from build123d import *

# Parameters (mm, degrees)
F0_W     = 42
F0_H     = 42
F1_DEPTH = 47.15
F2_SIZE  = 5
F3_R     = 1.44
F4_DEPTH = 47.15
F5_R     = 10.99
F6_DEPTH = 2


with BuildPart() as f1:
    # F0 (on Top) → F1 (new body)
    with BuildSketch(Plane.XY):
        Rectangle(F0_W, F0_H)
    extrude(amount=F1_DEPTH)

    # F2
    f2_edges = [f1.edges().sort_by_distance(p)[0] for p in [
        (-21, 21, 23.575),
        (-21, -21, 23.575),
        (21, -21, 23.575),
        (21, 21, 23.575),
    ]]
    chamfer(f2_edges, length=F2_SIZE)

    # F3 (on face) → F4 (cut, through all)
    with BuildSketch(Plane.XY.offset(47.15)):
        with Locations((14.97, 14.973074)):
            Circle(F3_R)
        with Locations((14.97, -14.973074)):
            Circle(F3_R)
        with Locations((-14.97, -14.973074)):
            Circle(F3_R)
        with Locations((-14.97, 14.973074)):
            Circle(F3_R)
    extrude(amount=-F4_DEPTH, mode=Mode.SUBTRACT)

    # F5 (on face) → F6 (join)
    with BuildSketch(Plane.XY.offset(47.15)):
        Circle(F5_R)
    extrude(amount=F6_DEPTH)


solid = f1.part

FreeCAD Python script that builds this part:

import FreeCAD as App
import Part
import Sketcher
from FreeCAD import Vector
Q = App.Units.Quantity


def edges_at(feature, points):
    """Names of the edges that pass closest to the given points."""
    edges = feature.Shape.Edges
    near = lambda p: min(range(len(edges)), key=lambda i: edges[i].distToShape(Part.Vertex(*p))[0])
    return sorted({f"Edge{near(p) + 1}" for p in points})


def add_polygon(sketch, points):
    """Adds a closed chain of lines whose ends are joined by coincident constraints."""
    first, n = sketch.GeometryCount, len(points)
    for a, b in zip(points, points[1:] + points[:1]):
        sketch.addGeometry(Part.LineSegment(App.Vector(*a, 0), App.Vector(*b, 0)), False)
    for i in range(n):
        sketch.addConstraint(Sketcher.Constraint("Coincident", first + i, 2, first + (i + 1) % n, 1))

doc = App.newDocument("Part")
body = doc.addObject("PartDesign::Body", "Body")

sketch1 = body.newObject("Sketcher::SketchObject", "Sketch")
sketch1.AttachmentSupport = (doc.getObject("XY_Plane"), [""])
sketch1.MapMode = "FlatFace"
add_polygon(sketch1, [(-21, 21), (-21, -21), (21, -21), (21, 21)])
sketch1.addConstraint(Sketcher.Constraint("Vertical", 0))
sketch1.addConstraint(Sketcher.Constraint("Horizontal", 1))
sketch1.addConstraint(Sketcher.Constraint("Vertical", 2))
sketch1.addConstraint(Sketcher.Constraint("Horizontal", 3))
sketch1.addConstraint(Sketcher.Constraint("Symmetric", 0, 2, 2, 2, -1, 1))
sketch1.addConstraint(Sketcher.Constraint("Equal", 3, 0))
sketch1.addConstraint(Sketcher.Constraint("DistanceX", 1, 1, 1, 2, Q("42 mm")))
pad1 = body.newObject("PartDesign::Pad", "Pad")
pad1.Profile = sketch1
pad1.Length = 47.15
doc.recompute()

chamfer = body.newObject("PartDesign::Chamfer", "Chamfer")
chamfer.Base = (pad1, edges_at(pad1, [
    (-21, 21, 23.575),
    (-21, -21, 23.575),
    (21, -21, 23.575),
    (21, 21, 23.575),
]))
chamfer.Size = 5

sketch2 = body.newObject("Sketcher::SketchObject", "Sketch001")
sketch2.AttachmentSupport = (doc.getObject("XY_Plane"), [""])
sketch2.MapMode = "FlatFace"
sketch2.AttachmentOffset = App.Placement(Vector(0, 0, 47.15), App.Rotation())
sketch2.addGeometry(Part.Circle(Vector(15, 15, 0), Vector(0, 0, 1), 1.4), False)
sketch2.addGeometry(Part.Circle(Vector(15, -15, 0), Vector(0, 0, 1), 1.4), False)
sketch2.addGeometry(Part.Circle(Vector(-15, -15, 0), Vector(0, 0, 1), 1.4), False)
sketch2.addGeometry(Part.Circle(Vector(-15, 15, 0), Vector(0, 0, 1), 1.4), False)
sketch2.addConstraint(Sketcher.Constraint("Equal", 0, 1))
sketch2.addConstraint(Sketcher.Constraint("Equal", 1, 2))
sketch2.addConstraint(Sketcher.Constraint("Equal", 2, 3))
sketch2.addConstraint(Sketcher.Constraint("Symmetric", 0, 3, 2, 3, -1, 1))
sketch2.addConstraint(Sketcher.Constraint("Symmetric", 1, 3, 3, 3, -1, 1))
sketch2.addConstraint(Sketcher.Constraint("Symmetric", 1, 3, 2, 3, -2))
sketch2.addConstraint(Sketcher.Constraint("Diameter", 0, Q("2.88 mm")))
sketch2.addConstraint(Sketcher.Constraint("DistanceX", -1, 1, 0, 3, Q("14.97 mm")))
sketch2.addConstraint(Sketcher.Constraint("DistanceY", 1, 3, 0, 3, Q("29.946148 mm")))
pocket1 = body.newObject("PartDesign::Pocket", "Pocket")
pocket1.Profile = sketch2
pocket1.Type = "ThroughAll"

sketch3 = body.newObject("Sketcher::SketchObject", "Sketch002")
sketch3.AttachmentSupport = (doc.getObject("XY_Plane"), [""])
sketch3.MapMode = "FlatFace"
sketch3.AttachmentOffset = App.Placement(Vector(0, 0, 47.15), App.Rotation())
sketch3.addGeometry(Part.Circle(Vector(0, 0, 0), Vector(0, 0, 1), 11), False)
sketch3.addConstraint(Sketcher.Constraint("Coincident", 0, 3, -1, 1))
sketch3.addConstraint(Sketcher.Constraint("Diameter", 0, Q("21.98 mm")))
pad2 = body.newObject("PartDesign::Pad", "Pad001")
pad2.Profile = sketch3
pad2.Length = 2

doc.recompute()
